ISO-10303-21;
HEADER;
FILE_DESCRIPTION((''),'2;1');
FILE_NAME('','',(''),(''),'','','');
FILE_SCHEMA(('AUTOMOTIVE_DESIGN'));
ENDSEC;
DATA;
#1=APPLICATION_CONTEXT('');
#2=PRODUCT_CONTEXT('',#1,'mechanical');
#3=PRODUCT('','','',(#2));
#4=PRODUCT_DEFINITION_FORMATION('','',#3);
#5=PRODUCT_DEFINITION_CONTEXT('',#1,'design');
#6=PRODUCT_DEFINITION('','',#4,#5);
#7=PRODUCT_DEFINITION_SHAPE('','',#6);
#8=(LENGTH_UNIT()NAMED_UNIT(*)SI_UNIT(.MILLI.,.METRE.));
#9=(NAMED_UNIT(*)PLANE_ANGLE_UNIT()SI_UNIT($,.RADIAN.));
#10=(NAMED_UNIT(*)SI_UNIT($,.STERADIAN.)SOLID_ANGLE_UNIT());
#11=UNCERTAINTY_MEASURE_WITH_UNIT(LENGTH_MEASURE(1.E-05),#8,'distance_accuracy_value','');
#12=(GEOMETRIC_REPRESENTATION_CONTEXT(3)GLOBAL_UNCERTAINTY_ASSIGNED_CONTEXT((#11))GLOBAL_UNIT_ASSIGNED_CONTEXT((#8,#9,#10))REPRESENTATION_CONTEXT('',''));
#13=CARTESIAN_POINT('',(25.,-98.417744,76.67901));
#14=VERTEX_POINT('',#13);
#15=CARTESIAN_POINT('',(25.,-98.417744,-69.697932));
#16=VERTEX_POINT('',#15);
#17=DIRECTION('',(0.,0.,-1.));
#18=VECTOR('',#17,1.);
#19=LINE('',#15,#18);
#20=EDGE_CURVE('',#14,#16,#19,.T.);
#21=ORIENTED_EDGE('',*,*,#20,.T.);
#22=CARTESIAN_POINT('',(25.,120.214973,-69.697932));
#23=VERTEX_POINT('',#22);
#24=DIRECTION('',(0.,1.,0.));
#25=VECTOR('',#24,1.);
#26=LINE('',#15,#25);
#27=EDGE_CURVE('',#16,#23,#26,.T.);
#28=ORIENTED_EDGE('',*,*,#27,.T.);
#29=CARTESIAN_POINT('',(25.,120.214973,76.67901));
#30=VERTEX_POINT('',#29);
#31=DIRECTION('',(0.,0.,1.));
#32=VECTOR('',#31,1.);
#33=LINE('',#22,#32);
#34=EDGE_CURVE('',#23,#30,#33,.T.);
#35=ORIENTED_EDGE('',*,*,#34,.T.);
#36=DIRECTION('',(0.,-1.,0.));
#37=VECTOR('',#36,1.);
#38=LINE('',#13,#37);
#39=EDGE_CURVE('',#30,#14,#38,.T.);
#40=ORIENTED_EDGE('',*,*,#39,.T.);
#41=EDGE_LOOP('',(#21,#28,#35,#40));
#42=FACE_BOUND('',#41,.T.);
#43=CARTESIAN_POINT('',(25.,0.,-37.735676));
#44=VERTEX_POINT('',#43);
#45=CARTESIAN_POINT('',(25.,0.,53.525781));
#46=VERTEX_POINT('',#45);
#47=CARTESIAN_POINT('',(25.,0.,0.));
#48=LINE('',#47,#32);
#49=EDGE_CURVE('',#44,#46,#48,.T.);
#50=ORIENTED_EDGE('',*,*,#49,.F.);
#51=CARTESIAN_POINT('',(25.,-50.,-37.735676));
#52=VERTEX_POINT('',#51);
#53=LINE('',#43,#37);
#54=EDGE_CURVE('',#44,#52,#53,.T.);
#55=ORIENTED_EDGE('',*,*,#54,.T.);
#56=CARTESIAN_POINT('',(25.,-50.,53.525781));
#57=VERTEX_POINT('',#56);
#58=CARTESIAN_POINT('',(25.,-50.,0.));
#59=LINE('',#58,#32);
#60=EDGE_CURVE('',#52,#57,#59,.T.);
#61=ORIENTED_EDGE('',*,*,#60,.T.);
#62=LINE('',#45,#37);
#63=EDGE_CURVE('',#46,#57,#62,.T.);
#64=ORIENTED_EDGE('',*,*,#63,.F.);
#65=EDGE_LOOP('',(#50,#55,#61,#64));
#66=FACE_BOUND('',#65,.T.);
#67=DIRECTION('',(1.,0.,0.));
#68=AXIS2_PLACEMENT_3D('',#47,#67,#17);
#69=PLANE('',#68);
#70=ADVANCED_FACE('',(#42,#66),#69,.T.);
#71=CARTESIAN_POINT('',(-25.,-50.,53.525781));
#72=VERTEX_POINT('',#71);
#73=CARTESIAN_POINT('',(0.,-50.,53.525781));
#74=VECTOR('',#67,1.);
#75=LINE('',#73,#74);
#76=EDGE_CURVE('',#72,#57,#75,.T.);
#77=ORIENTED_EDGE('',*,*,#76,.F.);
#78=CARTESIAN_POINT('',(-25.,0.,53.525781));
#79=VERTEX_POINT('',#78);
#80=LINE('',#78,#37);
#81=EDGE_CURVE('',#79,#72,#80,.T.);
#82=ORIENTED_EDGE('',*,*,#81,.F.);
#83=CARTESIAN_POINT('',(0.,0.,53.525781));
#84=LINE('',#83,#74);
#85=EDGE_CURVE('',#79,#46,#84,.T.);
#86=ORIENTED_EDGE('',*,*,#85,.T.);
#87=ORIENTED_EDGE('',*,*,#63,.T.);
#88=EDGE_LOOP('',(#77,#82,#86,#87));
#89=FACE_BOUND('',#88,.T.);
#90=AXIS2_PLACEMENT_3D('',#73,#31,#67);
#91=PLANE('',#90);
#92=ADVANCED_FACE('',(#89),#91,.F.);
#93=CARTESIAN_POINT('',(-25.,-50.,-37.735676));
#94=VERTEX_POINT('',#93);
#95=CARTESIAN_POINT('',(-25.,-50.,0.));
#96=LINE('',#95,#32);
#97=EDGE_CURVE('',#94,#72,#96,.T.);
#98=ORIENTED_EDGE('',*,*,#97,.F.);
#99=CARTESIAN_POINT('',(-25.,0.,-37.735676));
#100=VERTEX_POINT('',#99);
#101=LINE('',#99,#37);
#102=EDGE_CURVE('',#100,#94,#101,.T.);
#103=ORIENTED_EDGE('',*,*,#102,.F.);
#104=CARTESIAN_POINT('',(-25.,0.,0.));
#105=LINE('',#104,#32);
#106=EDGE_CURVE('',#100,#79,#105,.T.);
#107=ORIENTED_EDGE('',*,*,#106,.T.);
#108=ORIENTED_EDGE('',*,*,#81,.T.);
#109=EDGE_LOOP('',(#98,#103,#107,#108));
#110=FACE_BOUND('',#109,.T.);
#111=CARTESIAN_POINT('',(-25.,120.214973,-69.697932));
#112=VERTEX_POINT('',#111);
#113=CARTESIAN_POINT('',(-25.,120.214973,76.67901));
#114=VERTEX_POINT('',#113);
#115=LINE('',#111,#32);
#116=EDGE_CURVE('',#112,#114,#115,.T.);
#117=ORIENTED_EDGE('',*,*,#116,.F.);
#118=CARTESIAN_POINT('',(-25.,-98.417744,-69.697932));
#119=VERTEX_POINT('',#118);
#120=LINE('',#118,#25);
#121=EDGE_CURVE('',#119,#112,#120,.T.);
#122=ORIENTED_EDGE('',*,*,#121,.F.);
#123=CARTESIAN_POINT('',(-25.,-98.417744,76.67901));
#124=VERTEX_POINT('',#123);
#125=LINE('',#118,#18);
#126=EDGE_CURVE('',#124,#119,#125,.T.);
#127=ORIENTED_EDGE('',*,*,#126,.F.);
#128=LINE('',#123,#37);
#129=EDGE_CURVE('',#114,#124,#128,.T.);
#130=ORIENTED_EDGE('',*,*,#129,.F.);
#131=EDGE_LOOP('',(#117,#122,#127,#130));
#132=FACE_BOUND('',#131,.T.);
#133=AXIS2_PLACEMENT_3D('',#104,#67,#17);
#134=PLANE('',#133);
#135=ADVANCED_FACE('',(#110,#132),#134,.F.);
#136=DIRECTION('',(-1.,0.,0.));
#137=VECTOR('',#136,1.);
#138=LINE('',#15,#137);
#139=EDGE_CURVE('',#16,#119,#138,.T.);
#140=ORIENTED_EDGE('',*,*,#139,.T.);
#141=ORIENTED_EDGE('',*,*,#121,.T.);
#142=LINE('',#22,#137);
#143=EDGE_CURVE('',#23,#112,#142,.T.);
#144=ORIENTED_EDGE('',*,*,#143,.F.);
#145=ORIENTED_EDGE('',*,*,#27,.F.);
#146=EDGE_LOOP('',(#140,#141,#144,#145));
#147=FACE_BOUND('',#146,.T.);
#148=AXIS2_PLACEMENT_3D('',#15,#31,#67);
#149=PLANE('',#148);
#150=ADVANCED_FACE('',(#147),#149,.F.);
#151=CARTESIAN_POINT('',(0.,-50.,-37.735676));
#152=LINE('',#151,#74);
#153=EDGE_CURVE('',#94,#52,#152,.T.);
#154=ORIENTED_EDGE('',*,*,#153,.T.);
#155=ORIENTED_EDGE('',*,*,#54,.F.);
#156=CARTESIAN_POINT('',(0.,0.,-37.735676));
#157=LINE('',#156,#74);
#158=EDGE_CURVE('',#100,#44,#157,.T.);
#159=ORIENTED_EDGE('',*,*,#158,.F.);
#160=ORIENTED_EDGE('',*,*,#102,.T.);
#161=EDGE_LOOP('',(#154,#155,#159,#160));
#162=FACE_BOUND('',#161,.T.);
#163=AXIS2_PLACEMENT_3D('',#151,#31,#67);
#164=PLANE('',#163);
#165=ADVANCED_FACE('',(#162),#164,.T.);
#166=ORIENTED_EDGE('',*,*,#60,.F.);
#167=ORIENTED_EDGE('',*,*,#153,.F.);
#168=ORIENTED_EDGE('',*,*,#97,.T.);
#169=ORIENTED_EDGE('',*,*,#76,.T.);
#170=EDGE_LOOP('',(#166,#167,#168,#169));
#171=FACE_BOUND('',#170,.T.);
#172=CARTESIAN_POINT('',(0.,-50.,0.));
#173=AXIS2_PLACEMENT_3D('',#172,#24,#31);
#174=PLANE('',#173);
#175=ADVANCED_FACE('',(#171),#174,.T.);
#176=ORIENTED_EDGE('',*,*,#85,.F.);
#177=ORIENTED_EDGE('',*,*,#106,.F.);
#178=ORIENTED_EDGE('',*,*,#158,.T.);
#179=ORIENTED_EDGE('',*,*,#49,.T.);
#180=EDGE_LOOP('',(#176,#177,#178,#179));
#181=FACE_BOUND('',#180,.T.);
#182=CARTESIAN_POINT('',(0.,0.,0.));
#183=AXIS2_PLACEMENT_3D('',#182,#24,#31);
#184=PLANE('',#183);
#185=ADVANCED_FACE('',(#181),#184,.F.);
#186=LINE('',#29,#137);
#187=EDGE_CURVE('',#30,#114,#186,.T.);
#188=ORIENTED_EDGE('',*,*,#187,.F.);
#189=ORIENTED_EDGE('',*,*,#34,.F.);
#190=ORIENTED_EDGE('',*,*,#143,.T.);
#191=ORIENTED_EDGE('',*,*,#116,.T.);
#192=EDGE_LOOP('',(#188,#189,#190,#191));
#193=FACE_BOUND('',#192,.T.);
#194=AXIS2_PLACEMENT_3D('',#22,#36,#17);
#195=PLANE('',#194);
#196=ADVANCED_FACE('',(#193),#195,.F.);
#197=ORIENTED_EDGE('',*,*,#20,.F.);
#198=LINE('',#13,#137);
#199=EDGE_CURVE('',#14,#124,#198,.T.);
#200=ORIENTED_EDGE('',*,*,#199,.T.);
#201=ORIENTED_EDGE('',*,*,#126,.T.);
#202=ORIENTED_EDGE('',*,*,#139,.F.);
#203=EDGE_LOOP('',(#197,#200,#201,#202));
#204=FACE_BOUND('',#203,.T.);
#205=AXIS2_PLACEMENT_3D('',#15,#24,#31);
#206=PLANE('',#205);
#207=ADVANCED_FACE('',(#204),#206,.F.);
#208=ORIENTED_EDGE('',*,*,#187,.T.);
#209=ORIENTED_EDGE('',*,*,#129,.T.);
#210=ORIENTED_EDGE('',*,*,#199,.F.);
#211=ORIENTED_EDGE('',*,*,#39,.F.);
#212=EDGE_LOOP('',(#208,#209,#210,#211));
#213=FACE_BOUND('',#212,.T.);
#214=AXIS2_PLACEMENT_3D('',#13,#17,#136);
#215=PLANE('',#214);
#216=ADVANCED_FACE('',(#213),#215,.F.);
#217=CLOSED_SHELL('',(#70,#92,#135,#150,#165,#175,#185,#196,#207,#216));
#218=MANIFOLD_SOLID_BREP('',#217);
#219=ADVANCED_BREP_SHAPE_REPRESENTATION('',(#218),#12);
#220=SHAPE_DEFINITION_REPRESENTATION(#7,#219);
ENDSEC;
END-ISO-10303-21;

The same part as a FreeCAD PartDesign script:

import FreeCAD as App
import Part
import Sketcher

V = App.Vector

doc = App.newDocument("Part")
params = doc.addObject("Spreadsheet::Sheet", "Params")
for row, (alias, value) in enumerate([
    ("pad1_length", "50 mm"),
    ("pocket1_length", "50 mm"),
], start=1):
    params.set(f"A{row}", alias)
    params.set(f"B{row}", "=" + value)
    params.setAlias(f"B{row}", alias)

body = doc.addObject("PartDesign::Body", "Body")

sketch1 = body.newObject("Sketcher::SketchObject", "Sketch")
sketch1.AttachmentSupport = (doc.getObject("YZ_Plane"), [""])
sketch1.MapMode = "FlatFace"
sketch1.addGeometry(Part.LineSegment(V(120, 77, 0), V(-98, 77, 0)), False)
sketch1.addGeometry(Part.LineSegment(V(-98, 77, 0), V(-98, -70, 0)), False)
sketch1.addGeometry(Part.LineSegment(V(-98, -70, 0), V(120, -70, 0)), False)
sketch1.addGeometry(Part.LineSegment(V(120, -70, 0), V(120, 77, 0)), False)
sketch1.addConstraint(Sketcher.Constraint("Coincident", 0, 2, 1, 1))
sketch1.addConstraint(Sketcher.Constraint("Coincident", 1, 2, 2, 1))
sketch1.addConstraint(Sketcher.Constraint("Coincident", 2, 2, 3, 1))
sketch1.addConstraint(Sketcher.Constraint("Coincident", 3, 2, 0, 1))
sketch1.addConstraint(Sketcher.Constraint("Horizontal", 0))
sketch1.addConstraint(Sketcher.Constraint("Vertical", 1))
sketch1.addConstraint(Sketcher.Constraint("Horizontal", 2))
sketch1.addConstraint(Sketcher.Constraint("Vertical", 3))
sketch1.addConstraint(Sketcher.Constraint("DistanceY", 1, 2, 1, 1, 146.376942))
sketch1.addConstraint(Sketcher.Constraint("DistanceX", 0, 2, 0, 1, 218.632717))
sketch1.addConstraint(Sketcher.Constraint("DistanceY", -1, 1, 0, 2, 76.67901))
sketch1.addConstraint(Sketcher.Constraint("DistanceX", 0, 2, -1, 1, 98.417744))
pad1 = body.newObject("PartDesign::Pad", "Pad")
pad1.Profile = sketch1
pad1.setExpression("Length", "Params.pad1_length")
pad1.Midplane = True

sketch2 = body.newObject("Sketcher::SketchObject", "Sketch001")
sketch2.AttachmentSupport = (doc.getObject("XZ_Plane"), [""])
sketch2.MapMode = "FlatFace"
sketch2.addGeometry(Part.LineSegment(V(28.23485, -37.735676, 0), V(-25.290932, -37.735676, 0)), False)
sketch2.addGeometry(Part.BSplineCurve([V(-25.290932, -37.735676, 0), V(-30.761891, -7.536623, 0), V(-30.130821, 23.068452, 0), V(-31.981654, 53.525781, 0)], [4, 4], [0, 1], False, 3, [1, 1, 1, 1], False), False)
sketch2.addGeometry(Part.LineSegment(V(-31.981654, 53.525781, 0), V(35.996088, 53.525781, 0)), False)
sketch2.addGeometry(Part.BSplineCurve([V(28.23485, -37.735676, 0), V(39.48799, -7.968512, 0), V(30.114115, 23.184956, 0), V(35.996088, 53.525781, 0)], [4, 4], [0, 1], False, 3, [1, 1, 1, 1], False), False)
sketch2.addConstraint(Sketcher.Constraint("Block", 1))
sketch2.addConstraint(Sketcher.Constraint("Block", 3))
sketch2.addConstraint(Sketcher.Constraint("Coincident", 0, 2, 1, 1))
sketch2.addConstraint(Sketcher.Constraint("Coincident", 1, 2, 2, 1))
sketch2.addConstraint(Sketcher.Constraint("Coincident", 2, 2, 3, 2))
sketch2.addConstraint(Sketcher.Constraint("Coincident", 3, 1, 0, 1))
pocket1 = body.newObject("PartDesign::Pocket", "Pocket")
pocket1.Profile = sketch2
pocket1.setExpression("Length", "Params.pocket1_length")
pocket1.Reversed = True

doc.recompute()
